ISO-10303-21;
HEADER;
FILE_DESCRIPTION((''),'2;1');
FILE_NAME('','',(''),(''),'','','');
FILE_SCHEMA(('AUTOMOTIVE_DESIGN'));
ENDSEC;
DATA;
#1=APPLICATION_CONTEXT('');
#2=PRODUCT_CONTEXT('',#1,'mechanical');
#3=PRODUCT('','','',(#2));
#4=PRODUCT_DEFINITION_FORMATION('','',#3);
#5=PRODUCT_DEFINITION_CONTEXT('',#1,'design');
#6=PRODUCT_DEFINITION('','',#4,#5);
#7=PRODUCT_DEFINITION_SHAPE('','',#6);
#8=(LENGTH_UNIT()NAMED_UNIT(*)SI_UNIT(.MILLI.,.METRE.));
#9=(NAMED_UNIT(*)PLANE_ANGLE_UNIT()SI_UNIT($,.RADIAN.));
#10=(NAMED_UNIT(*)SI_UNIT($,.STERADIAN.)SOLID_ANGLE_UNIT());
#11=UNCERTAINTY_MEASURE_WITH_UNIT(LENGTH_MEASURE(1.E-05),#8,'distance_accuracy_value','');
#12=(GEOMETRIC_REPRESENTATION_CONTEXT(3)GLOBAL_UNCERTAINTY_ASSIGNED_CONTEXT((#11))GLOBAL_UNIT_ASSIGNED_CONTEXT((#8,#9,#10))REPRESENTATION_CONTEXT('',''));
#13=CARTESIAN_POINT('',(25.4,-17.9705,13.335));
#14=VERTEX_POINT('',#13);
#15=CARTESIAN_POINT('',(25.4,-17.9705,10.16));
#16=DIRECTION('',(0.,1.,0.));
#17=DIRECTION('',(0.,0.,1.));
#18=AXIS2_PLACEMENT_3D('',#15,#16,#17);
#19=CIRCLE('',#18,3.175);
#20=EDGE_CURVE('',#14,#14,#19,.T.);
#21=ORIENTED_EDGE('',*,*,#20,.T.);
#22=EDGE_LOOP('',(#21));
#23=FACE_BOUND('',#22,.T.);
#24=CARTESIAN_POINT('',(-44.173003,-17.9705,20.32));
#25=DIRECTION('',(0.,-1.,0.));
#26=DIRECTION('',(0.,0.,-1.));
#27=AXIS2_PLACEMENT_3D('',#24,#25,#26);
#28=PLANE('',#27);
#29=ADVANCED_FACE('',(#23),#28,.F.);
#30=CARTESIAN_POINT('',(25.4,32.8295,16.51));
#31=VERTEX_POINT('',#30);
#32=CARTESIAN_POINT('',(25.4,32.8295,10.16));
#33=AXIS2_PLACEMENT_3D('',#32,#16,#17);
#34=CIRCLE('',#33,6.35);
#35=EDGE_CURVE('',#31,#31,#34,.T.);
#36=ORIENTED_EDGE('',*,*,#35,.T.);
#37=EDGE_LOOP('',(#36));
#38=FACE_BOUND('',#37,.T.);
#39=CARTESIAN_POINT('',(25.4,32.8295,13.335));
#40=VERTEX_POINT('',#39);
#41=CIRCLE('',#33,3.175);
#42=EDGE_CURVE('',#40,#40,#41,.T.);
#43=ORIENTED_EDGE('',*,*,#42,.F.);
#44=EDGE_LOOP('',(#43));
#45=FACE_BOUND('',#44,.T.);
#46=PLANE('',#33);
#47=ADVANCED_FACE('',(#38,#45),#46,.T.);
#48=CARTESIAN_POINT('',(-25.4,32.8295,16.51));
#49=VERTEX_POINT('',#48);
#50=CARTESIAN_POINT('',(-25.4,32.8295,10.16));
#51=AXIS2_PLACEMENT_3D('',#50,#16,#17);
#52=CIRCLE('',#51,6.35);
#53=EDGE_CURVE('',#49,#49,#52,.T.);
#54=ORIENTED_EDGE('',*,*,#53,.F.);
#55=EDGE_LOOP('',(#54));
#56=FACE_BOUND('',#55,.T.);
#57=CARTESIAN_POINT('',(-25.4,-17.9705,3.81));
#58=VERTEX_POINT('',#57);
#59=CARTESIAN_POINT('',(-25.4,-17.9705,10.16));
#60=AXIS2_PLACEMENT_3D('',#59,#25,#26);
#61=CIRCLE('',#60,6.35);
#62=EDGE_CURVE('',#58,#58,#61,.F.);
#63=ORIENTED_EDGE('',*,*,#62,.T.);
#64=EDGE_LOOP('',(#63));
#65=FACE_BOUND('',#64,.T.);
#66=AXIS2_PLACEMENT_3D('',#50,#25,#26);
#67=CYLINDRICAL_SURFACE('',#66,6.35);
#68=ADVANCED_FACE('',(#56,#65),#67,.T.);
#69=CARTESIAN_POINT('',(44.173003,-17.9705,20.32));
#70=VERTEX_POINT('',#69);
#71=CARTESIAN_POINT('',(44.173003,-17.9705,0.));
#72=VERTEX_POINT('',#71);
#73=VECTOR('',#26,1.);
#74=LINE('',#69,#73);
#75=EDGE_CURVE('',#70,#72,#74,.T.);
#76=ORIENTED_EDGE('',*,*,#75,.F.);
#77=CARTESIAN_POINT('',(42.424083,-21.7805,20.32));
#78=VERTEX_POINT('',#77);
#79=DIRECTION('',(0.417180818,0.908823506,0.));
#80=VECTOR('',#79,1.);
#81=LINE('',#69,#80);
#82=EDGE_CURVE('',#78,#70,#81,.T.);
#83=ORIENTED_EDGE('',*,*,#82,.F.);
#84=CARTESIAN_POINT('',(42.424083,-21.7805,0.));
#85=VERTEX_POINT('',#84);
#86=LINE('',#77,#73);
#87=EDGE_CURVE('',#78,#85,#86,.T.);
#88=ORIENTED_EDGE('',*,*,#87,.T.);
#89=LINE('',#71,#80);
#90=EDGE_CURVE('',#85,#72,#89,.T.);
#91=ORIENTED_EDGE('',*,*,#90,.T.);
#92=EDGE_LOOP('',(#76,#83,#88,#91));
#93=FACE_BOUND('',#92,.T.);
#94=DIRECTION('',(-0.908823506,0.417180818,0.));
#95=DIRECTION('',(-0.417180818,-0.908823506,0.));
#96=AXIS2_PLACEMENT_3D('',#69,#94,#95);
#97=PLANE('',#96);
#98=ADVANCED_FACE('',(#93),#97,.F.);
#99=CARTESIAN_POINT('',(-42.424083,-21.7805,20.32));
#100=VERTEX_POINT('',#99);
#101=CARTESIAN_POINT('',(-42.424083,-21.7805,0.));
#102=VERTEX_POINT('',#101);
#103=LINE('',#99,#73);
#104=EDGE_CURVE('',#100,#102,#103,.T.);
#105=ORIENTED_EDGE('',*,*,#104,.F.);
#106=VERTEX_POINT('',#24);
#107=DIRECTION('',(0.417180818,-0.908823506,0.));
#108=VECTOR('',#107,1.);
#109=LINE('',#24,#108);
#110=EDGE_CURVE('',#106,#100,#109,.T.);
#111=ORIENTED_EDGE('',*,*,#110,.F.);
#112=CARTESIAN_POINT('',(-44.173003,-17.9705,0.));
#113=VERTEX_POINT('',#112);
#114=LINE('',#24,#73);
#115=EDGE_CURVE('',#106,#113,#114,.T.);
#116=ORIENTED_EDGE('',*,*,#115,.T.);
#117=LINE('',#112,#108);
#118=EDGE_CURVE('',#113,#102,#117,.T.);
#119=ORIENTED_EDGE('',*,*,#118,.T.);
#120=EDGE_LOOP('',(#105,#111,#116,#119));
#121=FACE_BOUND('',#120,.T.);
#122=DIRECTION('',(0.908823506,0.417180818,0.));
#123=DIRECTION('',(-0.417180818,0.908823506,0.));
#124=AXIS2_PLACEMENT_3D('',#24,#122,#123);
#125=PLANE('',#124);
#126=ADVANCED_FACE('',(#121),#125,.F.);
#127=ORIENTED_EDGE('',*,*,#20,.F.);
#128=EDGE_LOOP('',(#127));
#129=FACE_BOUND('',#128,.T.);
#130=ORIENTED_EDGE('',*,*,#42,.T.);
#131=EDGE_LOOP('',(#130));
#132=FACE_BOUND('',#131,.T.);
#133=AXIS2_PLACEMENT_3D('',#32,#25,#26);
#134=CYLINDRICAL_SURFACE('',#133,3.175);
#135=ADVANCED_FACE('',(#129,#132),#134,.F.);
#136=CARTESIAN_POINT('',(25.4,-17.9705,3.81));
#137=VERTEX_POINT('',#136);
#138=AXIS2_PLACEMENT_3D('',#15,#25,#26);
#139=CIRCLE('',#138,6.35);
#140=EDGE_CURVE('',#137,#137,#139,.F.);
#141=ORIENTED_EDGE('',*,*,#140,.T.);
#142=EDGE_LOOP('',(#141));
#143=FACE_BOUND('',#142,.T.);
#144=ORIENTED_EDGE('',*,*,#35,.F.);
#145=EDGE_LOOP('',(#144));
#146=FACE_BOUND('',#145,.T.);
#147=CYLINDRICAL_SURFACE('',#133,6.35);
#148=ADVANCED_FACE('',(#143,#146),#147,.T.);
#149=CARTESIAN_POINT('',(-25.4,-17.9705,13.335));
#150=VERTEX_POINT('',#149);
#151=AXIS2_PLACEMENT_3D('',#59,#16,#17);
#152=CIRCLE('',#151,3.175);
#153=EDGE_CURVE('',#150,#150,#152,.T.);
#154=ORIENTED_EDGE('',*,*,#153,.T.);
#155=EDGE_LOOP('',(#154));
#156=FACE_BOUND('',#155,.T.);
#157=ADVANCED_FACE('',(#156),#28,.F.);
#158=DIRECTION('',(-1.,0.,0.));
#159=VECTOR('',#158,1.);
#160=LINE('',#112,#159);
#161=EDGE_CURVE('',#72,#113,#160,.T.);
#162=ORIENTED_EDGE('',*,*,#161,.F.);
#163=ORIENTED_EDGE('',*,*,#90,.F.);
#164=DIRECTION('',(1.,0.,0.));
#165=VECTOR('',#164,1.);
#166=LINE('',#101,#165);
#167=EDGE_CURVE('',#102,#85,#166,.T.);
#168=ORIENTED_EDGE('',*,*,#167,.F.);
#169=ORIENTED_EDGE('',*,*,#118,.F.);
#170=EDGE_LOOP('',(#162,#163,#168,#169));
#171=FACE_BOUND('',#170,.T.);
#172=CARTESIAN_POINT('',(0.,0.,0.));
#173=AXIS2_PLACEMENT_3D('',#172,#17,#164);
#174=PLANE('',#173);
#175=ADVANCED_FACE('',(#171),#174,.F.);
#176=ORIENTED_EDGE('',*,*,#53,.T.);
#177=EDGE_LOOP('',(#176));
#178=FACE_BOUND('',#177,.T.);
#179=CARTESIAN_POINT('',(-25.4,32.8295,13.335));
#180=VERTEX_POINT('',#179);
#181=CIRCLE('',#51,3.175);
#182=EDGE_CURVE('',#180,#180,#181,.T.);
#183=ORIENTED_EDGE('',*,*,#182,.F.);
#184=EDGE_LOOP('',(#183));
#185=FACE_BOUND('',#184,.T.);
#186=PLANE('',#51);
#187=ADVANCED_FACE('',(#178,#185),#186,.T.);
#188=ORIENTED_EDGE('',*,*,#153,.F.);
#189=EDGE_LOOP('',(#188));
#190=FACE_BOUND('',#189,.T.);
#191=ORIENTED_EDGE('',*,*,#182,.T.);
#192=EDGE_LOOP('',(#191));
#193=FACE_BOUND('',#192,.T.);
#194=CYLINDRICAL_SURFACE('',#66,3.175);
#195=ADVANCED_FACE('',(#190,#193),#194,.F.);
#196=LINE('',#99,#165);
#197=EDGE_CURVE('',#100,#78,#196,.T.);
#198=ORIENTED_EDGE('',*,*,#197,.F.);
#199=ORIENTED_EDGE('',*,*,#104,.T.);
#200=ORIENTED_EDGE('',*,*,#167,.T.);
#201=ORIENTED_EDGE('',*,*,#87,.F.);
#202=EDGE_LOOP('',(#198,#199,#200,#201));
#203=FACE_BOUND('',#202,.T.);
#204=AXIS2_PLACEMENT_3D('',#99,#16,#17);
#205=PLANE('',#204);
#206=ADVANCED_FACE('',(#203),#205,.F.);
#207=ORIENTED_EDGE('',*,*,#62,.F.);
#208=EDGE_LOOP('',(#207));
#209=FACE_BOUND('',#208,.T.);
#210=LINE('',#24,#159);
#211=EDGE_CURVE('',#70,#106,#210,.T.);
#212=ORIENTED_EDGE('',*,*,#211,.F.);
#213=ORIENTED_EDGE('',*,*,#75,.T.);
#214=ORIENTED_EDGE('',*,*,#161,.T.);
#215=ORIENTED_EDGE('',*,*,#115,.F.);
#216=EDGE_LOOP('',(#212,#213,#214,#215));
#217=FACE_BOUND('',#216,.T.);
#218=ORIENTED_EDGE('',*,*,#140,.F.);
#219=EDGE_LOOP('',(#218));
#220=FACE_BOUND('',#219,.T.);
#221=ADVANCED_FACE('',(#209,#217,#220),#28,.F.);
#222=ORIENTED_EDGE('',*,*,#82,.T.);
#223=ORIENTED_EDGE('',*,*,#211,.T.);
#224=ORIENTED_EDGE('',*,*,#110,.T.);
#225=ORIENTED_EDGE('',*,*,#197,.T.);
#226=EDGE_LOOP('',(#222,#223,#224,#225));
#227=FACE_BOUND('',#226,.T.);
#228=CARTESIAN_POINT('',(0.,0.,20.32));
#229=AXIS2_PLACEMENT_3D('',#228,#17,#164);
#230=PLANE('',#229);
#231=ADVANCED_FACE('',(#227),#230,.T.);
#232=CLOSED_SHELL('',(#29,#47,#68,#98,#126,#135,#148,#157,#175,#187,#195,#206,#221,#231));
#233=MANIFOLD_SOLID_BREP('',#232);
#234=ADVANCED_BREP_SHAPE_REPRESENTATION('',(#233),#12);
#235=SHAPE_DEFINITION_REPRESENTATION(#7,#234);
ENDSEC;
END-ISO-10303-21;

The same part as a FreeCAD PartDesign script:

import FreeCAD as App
import Part
import Sketcher
from FreeCAD import Vector
Q = App.Units.Quantity

doc = App.newDocument("Part")
body = doc.addObject("PartDesign::Body", "Body")

sketch1 = body.newObject("Sketcher::SketchObject", "Sketch")
sketch1.AttachmentSupport = (doc.getObject("XY_Plane"), [""])
sketch1.MapMode = "FlatFace"
sketch1.addGeometry([
    Part.LineSegment(Vector(44.2, -18, 0), Vector(-44.2, -18, 0)),
    Part.LineSegment(Vector(-44.2, -18, 0), Vector(-42.4, -21.8, 0)),
    Part.LineSegment(Vector(-42.4, -21.8, 0), Vector(42.4, -21.8, 0)),
    Part.LineSegment(Vector(42.4, -21.8, 0), Vector(44.2, -18, 0)),
], False)
sketch1.addConstraint([
    Sketcher.Constraint("Coincident", 0, 2, 1, 1),
    Sketcher.Constraint("Coincident", 1, 2, 2, 1),
    Sketcher.Constraint("Coincident", 2, 2, 3, 1),
    Sketcher.Constraint("Coincident", 3, 2, 0, 1),
    Sketcher.Constraint("Horizontal", 0),
    Sketcher.Constraint("Horizontal", 2),
    Sketcher.Constraint("Equal", 1, 3),
    Sketcher.Constraint("DistanceY", 1, 2, 0, 2, Q("0.15 in")),
    Sketcher.Constraint("DistanceY", 0, 2, -1, 1, Q("0.7075 in")),
    Sketcher.Constraint("DistanceX", 0, 2, 0, 1, Q("88.346005 mm")),
    Sketcher.Constraint("DistanceX", 2, 1, 2, 2, Q("84.848167 mm")),
    Sketcher.Constraint("DistanceX", 0, 2, -1, 1, Q("44.173003 mm")),
])
pad1 = body.newObject("PartDesign::Pad", "Pad")
pad1.Profile = sketch1
pad1.Length = Q("0.8 in")

sketch2 = body.newObject("Sketcher::SketchObject", "Sketch001")
sketch2.AttachmentSupport = (doc.getObject("XZ_Plane"), [""])
sketch2.MapMode = "FlatFace"
sketch2.AttachmentOffset = App.Placement(Vector(0, 0, 0.7075 * 25.4), App.Rotation())
sketch2.addGeometry([
    Part.Circle(Vector(-25.4, 10.2, 0), Vector(0, 0, 1), 6.3),
    Part.Circle(Vector(-25.4, 10.2, 0), Vector(0, 0, 1), 3.2),
    Part.Circle(Vector(25.4, 10.2, 0), Vector(0, 0, 1), 6.3),
    Part.Circle(Vector(25.4, 10.2, 0), Vector(0, 0, 1), 3.2),
], False)
sketch2.addConstraint([
    Sketcher.Constraint("Coincident", 1, 3, 0, 3),
    Sketcher.Constraint("Coincident", 3, 3, 2, 3),
    Sketcher.Constraint("Equal", 0, 2),
    Sketcher.Constraint("Equal", 1, 3),
    Sketcher.Constraint("Symmetric", 0, 3, 2, 3, -2),
    Sketcher.Constraint("Diameter", 0, Q("0.5 in")),
    Sketcher.Constraint("Diameter", 1, Q("0.25 in")),
    Sketcher.Constraint("DistanceX", 0, 3, -1, 1, Q("1 in")),
    Sketcher.Constraint("DistanceY", -1, 1, 0, 3, Q("0.4 in")),
])
pad2 = body.newObject("PartDesign::Pad", "Pad001")
pad2.Profile = sketch2
pad2.Length = Q("2 in")
pad2.Reversed = True

doc.recompute()
